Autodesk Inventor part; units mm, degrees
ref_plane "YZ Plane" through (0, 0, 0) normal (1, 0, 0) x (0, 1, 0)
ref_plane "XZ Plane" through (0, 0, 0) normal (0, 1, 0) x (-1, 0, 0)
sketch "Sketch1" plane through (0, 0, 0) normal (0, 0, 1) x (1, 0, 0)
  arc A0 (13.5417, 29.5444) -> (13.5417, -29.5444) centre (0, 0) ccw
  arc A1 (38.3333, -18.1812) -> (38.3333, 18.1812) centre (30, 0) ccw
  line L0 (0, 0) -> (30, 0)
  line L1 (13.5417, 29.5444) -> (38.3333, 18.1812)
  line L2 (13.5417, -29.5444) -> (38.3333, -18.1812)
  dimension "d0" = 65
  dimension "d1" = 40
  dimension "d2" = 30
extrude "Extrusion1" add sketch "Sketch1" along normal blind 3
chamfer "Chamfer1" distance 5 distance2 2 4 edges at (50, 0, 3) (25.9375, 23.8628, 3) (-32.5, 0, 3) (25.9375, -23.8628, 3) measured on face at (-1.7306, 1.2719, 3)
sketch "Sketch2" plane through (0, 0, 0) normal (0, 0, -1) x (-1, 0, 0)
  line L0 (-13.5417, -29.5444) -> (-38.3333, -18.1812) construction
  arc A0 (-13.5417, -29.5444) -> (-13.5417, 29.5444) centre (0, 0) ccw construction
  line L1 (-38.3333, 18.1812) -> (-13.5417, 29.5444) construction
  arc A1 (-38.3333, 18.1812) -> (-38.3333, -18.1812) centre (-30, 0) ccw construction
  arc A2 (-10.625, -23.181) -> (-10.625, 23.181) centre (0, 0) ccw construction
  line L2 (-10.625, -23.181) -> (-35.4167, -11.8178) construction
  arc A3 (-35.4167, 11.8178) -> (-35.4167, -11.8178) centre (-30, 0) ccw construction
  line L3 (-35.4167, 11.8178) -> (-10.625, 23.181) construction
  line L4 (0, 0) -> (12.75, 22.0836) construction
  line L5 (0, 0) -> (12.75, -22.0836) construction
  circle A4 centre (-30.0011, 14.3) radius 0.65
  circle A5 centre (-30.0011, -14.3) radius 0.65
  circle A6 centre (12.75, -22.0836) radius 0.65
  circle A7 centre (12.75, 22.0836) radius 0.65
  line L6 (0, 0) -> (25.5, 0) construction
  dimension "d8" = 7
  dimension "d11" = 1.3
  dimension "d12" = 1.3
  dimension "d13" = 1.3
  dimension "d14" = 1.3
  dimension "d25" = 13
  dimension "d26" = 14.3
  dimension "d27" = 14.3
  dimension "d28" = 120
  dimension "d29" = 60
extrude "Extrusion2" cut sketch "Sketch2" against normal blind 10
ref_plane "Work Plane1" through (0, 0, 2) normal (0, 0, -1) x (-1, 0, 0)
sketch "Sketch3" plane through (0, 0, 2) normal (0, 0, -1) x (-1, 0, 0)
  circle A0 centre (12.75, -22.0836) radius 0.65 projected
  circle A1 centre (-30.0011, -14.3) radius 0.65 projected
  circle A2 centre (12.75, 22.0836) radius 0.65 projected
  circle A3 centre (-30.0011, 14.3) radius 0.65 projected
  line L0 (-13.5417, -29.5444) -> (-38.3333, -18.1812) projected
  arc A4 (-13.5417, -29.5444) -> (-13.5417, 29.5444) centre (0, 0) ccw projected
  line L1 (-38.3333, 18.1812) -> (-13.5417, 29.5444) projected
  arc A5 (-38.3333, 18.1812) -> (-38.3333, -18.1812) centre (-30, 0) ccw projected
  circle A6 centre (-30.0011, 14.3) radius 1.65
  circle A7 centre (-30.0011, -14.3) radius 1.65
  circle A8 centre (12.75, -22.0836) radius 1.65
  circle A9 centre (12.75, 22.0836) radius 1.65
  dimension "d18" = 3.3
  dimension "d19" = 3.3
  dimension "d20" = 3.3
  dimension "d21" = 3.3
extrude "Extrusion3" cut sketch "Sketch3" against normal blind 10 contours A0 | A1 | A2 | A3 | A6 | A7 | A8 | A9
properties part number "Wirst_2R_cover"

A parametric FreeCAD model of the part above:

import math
import FreeCAD as App
import Part
import Sketcher

V = App.Vector
Q = App.Units.Quantity


def edges_at(feature, points):
    """Names of the edges that pass closest to the given points."""
    edges = feature.Shape.Edges
    near = lambda p: min(range(len(edges)), key=lambda i: edges[i].distToShape(Part.Vertex(*p))[0])
    return sorted({f"Edge{near(p) + 1}" for p in points})

doc = App.newDocument("Part")
params = doc.addObject("Spreadsheet::Sheet", "Params")
for row, (alias, value) in enumerate([
    ("sketch1_radius", "20 mm"),
    ("sketch1_radius2", "32.5 mm"),
    ("pad1_length", "3 mm"),
    ("chamfer_size", "5 mm"),
    ("chamfer_size2", "2 mm"),
    ("sketch2_diameter", "1.3 mm"),
    ("pocket1_length", "10 mm"),
    ("sketch3_diameter", "3.3 mm"),
    ("pocket2_length", "10 mm"),
], start=1):
    params.set(f"A{row}", alias)
    params.set(f"B{row}", "=" + value)
    params.setAlias(f"B{row}", alias)

body = doc.addObject("PartDesign::Body", "Body")

sketch1 = body.newObject("Sketcher::SketchObject", "Sketch")
sketch1.AttachmentSupport = (doc.getObject("XY_Plane"), [""])
sketch1.MapMode = "FlatFace"
sketch1.addGeometry([
    Part.LineSegment(V(38.3333, 18.1812, 0), V(13.5417, 29.5444, 0)),
    Part.ArcOfCircle(Part.Circle(V(0, 0, 0), V(0, 0, 1), 32.499988), math.radians(65.375607), math.radians(294.624393)),
    Part.LineSegment(V(13.5417, -29.5444, 0), V(38.3333, -18.1812, 0)),
    Part.ArcOfCircle(Part.Circle(V(30, 0, 0), V(0, 0, 1), 19.999998), math.radians(-65.375784), math.radians(65.375784)),
], False)
sketch1.addConstraint([
    Sketcher.Constraint("Tangent", 0, 2, 1, 1),
    Sketcher.Constraint("Tangent", 1, 2, 2, 1),
    Sketcher.Constraint("Tangent", 2, 2, 3, 1),
    Sketcher.Constraint("Tangent", 3, 2, 0, 1),
    Sketcher.Constraint("Coincident", 1, 3, -1, 1),
    Sketcher.Constraint("PointOnObject", 3, 3, -1),
    Sketcher.Constraint("Radius", 3, Q("20 mm")),
    Sketcher.Constraint("Radius", 1, Q("32.5 mm")),
    Sketcher.Constraint("DistanceX", -1, 1, 3, 3, Q("30 mm")),
])
sketch1.setExpression("Constraints[6]", "Params.sketch1_radius")
sketch1.setExpression("Constraints[7]", "Params.sketch1_radius2")
pad1 = body.newObject("PartDesign::Pad", "Pad")
pad1.Profile = sketch1
pad1.setExpression("Length", "Params.pad1_length")
doc.recompute()

chamfer = body.newObject("PartDesign::Chamfer", "Chamfer")
chamfer.Base = (pad1, edges_at(pad1, [
    (50, 0, 3),
    (25.938, 23.863, 3),
    (-32.5, 0, 3),
    (25.938, -23.863, 3),
]))
chamfer.ChamferType = "Two distances"
chamfer.setExpression("Size", "Params.chamfer_size")
chamfer.setExpression("Size2", "Params.chamfer_size2")
chamfer.FlipDirection = True

sketch2 = body.newObject("Sketcher::SketchObject", "Sketch001")
sketch2.AttachmentSupport = (doc.getObject("XY_Plane"), [""])
sketch2.MapMode = "FlatFace"
sketch2.addGeometry([
    Part.Circle(V(30.0011, 14.3, 0), V(0, 0, 1), 0.65),
    Part.Circle(V(30.0011, -14.3, 0), V(0, 0, 1), 0.65),
    Part.Circle(V(-12.75, -22.0836, 0), V(0, 0, 1), 0.65),
    Part.Circle(V(-12.75, 22.0836, 0), V(0, 0, 1), 0.65),
], False)
sketch2.addConstraint([
    Sketcher.Constraint("Equal", 0, 1),
    Sketcher.Constraint("Equal", 1, 2),
    Sketcher.Constraint("Equal", 2, 3),
    Sketcher.Constraint("Symmetric", 0, 3, 1, 3, -1),
    Sketcher.Constraint("Symmetric", 2, 3, 3, 3, -1),
    Sketcher.Constraint("Diameter", 0, Q("1.3 mm")),
    Sketcher.Constraint("DistanceY", -1, 1, 0, 3, Q("14.3 mm")),
    Sketcher.Constraint("DistanceX", 2, 3, -1, 1, Q("12.75 mm")),
    Sketcher.Constraint("DistanceX", -1, 1, 0, 3, Q("30.001 mm")),
    Sketcher.Constraint("DistanceY", 2, 3, -1, 1, Q("22.0836 mm")),
])
sketch2.setExpression("Constraints[5]", "Params.sketch2_diameter")
pocket1 = body.newObject("PartDesign::Pocket", "Pocket")
pocket1.Profile = sketch2
pocket1.setExpression("Length", "Params.pocket1_length")
pocket1.Reversed = True

sketch3 = body.newObject("Sketcher::SketchObject", "Sketch002")
sketch3.AttachmentSupport = (doc.getObject("XY_Plane"), [""])
sketch3.MapMode = "FlatFace"
sketch3.AttachmentOffset = App.Placement(V(0, 0, 2), App.Rotation())
sketch3.addGeometry([
    Part.Circle(V(-12.75, -22.0836, 0), V(0, 0, 1), 1.65),
    Part.Circle(V(30.0011, -14.3, 0), V(0, 0, 1), 1.65),
    Part.Circle(V(-12.75, 22.0836, 0), V(0, 0, 1), 1.65),
    Part.Circle(V(30.0011, 14.3, 0), V(0, 0, 1), 1.65),
], False)
sketch3.addConstraint([
    Sketcher.Constraint("Equal", 0, 1),
    Sketcher.Constraint("Equal", 1, 2),
    Sketcher.Constraint("Equal", 2, 3),
    Sketcher.Constraint("Symmetric", 0, 3, 2, 3, -1),
    Sketcher.Constraint("Symmetric", 1, 3, 3, 3, -1),
    Sketcher.Constraint("Diameter", 0, Q("3.3 mm")),
    Sketcher.Constraint("DistanceY", 1, 3, -1, 1, Q("14.3 mm")),
    Sketcher.Constraint("DistanceX", 0, 3, -1, 1, Q("12.75 mm")),
    Sketcher.Constraint("DistanceX", -1, 1, 1, 3, Q("30.001 mm")),
    Sketcher.Constraint("DistanceY", 0, 3, -1, 1, Q("22.0836 mm")),
])
sketch3.setExpression("Constraints[5]", "Params.sketch3_diameter")
pocket2 = body.newObject("PartDesign::Pocket", "Pocket001")
pocket2.Profile = sketch3
pocket2.setExpression("Length", "Params.pocket2_length")
pocket2.Reversed = True

doc.recompute()
